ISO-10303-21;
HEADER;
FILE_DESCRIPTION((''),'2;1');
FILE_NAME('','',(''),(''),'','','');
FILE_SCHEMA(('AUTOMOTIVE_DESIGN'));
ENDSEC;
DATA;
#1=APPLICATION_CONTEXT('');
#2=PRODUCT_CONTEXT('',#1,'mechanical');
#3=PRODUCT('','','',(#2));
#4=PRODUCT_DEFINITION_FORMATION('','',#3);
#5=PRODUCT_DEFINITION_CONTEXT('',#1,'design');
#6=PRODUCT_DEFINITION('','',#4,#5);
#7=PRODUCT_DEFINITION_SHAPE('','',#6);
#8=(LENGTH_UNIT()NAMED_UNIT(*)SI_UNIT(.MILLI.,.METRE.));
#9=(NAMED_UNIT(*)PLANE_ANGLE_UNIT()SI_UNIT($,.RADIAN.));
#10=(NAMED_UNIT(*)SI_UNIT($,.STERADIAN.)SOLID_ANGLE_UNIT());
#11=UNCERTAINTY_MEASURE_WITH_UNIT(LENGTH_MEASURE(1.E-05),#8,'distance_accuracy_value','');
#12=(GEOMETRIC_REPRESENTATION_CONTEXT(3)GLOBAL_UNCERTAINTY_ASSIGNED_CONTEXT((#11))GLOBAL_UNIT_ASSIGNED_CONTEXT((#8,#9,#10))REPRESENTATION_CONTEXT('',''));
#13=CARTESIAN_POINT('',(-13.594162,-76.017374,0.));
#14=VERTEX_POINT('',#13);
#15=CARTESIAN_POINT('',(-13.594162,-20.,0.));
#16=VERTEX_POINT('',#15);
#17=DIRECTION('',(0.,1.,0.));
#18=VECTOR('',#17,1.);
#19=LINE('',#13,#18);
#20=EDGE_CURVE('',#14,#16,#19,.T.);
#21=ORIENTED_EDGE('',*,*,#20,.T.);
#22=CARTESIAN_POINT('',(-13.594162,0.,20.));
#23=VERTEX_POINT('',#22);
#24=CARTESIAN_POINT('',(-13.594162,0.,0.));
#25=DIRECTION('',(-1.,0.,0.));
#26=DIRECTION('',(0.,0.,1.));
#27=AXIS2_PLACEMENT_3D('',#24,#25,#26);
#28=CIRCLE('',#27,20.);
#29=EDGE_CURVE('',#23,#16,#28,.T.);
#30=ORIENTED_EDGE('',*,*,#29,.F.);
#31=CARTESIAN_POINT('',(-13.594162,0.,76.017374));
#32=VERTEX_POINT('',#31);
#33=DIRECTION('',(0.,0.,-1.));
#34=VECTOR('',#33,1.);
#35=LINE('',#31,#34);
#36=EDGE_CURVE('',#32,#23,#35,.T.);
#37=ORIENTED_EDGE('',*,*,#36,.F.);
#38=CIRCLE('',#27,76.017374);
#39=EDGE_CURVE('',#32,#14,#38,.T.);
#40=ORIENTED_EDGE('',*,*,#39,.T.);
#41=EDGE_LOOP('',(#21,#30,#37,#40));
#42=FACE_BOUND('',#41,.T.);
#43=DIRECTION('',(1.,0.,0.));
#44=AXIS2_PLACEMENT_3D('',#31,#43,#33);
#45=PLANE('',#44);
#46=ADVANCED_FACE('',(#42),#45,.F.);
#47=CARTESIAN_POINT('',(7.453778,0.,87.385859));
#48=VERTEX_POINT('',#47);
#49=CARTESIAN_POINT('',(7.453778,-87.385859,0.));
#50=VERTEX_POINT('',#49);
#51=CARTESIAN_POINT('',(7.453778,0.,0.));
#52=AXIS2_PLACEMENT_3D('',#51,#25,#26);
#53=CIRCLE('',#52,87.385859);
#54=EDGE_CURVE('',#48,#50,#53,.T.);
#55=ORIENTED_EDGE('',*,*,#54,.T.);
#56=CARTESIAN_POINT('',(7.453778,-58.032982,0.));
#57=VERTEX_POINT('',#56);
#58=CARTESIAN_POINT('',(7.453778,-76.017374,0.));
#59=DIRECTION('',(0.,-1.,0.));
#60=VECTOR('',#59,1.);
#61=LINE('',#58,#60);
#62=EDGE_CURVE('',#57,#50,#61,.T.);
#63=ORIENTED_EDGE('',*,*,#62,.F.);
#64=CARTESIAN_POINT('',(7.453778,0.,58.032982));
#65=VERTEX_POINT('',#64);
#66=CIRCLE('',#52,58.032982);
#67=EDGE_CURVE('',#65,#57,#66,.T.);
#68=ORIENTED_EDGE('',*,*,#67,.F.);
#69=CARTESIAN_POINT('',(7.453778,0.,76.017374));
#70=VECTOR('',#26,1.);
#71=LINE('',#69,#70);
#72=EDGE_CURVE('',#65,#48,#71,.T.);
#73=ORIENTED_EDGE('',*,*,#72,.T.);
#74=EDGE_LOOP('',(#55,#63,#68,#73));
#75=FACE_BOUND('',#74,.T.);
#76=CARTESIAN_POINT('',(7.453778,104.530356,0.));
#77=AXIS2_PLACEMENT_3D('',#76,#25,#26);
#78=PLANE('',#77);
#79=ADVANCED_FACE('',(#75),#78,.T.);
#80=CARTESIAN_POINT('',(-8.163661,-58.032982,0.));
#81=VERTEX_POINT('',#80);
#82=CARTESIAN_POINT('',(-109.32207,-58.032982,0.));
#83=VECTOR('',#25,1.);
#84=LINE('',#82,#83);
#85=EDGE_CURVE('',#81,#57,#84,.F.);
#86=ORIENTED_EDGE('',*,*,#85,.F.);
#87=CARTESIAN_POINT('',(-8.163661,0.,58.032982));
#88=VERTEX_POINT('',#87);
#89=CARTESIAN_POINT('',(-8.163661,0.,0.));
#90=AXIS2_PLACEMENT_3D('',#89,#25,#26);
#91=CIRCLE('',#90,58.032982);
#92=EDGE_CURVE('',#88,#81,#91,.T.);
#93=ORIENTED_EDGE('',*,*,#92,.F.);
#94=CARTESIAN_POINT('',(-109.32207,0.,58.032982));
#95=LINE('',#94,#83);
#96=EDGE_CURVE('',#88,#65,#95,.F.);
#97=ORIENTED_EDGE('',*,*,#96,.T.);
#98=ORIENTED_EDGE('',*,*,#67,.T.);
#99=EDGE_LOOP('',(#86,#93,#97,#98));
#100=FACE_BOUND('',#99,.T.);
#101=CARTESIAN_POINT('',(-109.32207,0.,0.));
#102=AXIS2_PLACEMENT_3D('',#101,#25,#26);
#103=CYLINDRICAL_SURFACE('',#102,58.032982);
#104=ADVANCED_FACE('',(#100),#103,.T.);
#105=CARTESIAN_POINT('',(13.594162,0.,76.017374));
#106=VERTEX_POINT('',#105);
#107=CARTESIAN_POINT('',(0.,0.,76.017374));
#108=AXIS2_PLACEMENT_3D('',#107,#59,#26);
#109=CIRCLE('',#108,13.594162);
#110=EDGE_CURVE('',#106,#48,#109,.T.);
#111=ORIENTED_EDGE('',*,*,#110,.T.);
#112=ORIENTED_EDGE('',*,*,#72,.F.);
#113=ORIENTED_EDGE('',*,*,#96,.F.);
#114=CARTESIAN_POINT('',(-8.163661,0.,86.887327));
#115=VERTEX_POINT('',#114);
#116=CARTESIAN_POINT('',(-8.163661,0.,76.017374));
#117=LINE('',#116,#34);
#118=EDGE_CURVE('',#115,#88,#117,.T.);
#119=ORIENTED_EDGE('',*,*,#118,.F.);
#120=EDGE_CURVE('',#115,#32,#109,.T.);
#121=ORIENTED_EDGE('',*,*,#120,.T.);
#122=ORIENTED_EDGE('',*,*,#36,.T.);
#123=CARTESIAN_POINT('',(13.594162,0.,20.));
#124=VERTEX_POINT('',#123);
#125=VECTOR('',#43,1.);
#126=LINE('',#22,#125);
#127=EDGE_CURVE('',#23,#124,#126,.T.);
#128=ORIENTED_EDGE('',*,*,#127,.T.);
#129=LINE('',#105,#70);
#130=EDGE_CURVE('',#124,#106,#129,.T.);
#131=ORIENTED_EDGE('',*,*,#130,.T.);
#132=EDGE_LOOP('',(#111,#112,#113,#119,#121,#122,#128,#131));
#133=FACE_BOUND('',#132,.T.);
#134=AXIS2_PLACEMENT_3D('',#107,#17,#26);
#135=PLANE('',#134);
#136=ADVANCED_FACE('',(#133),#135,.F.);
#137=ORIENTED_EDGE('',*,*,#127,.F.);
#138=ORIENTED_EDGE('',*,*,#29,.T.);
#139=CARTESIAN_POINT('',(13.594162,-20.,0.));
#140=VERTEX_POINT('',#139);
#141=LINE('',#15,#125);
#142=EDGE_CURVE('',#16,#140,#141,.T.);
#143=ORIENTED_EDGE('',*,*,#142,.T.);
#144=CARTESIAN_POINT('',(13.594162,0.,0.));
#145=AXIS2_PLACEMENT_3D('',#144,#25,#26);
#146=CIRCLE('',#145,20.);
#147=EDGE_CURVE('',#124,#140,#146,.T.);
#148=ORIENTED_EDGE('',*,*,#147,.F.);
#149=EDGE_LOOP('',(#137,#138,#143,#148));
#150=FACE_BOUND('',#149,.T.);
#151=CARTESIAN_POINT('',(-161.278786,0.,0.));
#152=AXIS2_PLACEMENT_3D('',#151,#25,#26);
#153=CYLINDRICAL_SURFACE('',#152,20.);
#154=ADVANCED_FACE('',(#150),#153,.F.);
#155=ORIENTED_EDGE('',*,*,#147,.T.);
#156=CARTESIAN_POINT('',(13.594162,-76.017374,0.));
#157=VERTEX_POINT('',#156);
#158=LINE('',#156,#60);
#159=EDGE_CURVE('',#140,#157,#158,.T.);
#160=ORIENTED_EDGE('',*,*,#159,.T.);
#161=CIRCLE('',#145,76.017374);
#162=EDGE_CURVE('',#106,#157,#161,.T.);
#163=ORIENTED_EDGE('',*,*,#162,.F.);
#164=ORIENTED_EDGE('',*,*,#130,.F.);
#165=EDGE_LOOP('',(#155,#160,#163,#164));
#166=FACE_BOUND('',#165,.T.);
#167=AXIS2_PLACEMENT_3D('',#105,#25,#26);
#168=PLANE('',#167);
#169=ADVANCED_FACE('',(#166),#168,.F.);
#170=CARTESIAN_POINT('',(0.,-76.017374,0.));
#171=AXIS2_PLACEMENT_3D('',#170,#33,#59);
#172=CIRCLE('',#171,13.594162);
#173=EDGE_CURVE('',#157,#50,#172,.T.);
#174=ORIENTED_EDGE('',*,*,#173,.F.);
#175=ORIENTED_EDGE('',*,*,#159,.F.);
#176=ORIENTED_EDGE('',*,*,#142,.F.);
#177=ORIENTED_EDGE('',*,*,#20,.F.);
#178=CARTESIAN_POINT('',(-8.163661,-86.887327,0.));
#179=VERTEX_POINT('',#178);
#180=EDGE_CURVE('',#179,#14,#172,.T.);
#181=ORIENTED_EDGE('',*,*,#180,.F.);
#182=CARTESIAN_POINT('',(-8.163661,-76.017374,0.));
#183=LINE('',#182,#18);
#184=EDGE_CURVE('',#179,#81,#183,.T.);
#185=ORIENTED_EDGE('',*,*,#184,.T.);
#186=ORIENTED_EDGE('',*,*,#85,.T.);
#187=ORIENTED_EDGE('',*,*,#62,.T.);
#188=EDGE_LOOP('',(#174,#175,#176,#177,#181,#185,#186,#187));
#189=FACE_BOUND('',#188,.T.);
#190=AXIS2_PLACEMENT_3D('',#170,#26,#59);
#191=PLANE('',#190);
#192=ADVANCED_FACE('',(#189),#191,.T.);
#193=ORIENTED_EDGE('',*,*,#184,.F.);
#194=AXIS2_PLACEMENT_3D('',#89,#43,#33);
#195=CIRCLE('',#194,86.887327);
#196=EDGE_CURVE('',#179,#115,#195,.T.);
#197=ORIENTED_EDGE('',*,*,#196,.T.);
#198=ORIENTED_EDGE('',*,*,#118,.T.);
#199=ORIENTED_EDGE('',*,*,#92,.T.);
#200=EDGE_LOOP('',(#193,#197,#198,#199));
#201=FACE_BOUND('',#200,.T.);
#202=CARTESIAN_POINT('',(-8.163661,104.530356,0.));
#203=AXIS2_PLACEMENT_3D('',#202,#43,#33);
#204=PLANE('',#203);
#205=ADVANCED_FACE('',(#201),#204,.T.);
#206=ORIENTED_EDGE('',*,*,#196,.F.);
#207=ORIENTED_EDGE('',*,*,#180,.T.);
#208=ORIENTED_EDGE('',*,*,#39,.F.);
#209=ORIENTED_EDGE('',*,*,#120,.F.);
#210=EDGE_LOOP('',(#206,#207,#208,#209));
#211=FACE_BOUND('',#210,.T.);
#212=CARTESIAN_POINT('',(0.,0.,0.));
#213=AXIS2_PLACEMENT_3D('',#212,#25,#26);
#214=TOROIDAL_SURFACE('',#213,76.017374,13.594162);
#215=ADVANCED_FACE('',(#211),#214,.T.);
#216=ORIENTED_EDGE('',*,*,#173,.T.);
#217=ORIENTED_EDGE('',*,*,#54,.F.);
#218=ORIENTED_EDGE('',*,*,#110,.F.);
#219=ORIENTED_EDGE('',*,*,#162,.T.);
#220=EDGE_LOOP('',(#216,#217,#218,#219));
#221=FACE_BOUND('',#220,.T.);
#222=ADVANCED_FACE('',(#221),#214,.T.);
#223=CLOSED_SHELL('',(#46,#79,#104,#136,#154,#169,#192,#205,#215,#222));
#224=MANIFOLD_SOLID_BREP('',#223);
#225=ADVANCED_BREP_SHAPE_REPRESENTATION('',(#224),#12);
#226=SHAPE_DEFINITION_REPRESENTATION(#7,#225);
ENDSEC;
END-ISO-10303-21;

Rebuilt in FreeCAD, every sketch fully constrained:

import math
import FreeCAD as App
import Part
import Sketcher
from FreeCAD import Vector
Q = App.Units.Quantity

doc = App.newDocument("Part")
body = doc.addObject("PartDesign::Body", "Body")

# Sketch on XZ plane
sketch1 = body.newObject("Sketcher::SketchObject", "Sketch")
sketch1.AttachmentSupport = (doc.getObject("XZ_Plane"), [""])
sketch1.MapMode = "FlatFace"
sketch1.addGeometry([
    Part.LineSegment(Vector(-14, -76, 0), Vector(-14, -20, 0)),
    Part.LineSegment(Vector(-14, -20, 0), Vector(14, -20, 0)),
    Part.LineSegment(Vector(14, -20, 0), Vector(14, -76, 0)),
    Part.ArcOfCircle(Part.Circle(Vector(0, -76, 0), Vector(0, 0, 1), 14), math.radians(180), math.radians(360)),
], False)
sketch1.addConstraint([
    Sketcher.Constraint("Coincident", 0, 2, 1, 1),
    Sketcher.Constraint("Coincident", 1, 2, 2, 1),
    Sketcher.Constraint("Tangent", 2, 2, 3, 2),
    Sketcher.Constraint("Tangent", 3, 1, 0, 1),
    Sketcher.Constraint("Vertical", 0),
    Sketcher.Constraint("Horizontal", 1),
    Sketcher.Constraint("Vertical", 2),
    Sketcher.Constraint("PointOnObject", 3, 3, -2),
    Sketcher.Constraint("DistanceY", 0, 2, -1, 1, Q("20 mm")),
    Sketcher.Constraint("Radius", 3, Q("13.594162 mm")),
    Sketcher.Constraint("DistanceY", 0, 1, 0, 2, Q("56.017374 mm")),
])
revolution = body.newObject("PartDesign::Revolution", "Revolution")
revolution.Profile = sketch1
revolution.ReferenceAxis = (sketch1, ["H_Axis"])
revolution.Angle = 180

# Sketch on XZ plane
sketch2 = body.newObject("Sketcher::SketchObject", "Sketch001")
sketch2.AttachmentSupport = (doc.getObject("XZ_Plane"), [""])
sketch2.MapMode = "FlatFace"
sketch2.addGeometry([
    Part.LineSegment(Vector(-14, -76, 0), Vector(-14, -20, 0)),
    Part.LineSegment(Vector(-14, -20, 0), Vector(14, -20, 0)),
    Part.LineSegment(Vector(14, -20, 0), Vector(14, -76, 0)),
    Part.ArcOfCircle(Part.Circle(Vector(0, -76, 0), Vector(0, 0, 1), 14), math.radians(180), math.radians(360)),
], False)
sketch2.addConstraint([
    Sketcher.Constraint("Coincident", 0, 2, 1, 1),
    Sketcher.Constraint("Coincident", 1, 2, 2, 1),
    Sketcher.Constraint("Tangent", 2, 2, 3, 2),
    Sketcher.Constraint("Tangent", 3, 1, 0, 1),
    Sketcher.Constraint("Vertical", 0),
    Sketcher.Constraint("Horizontal", 1),
    Sketcher.Constraint("Vertical", 2),
    Sketcher.Constraint("PointOnObject", 3, 3, -2),
    Sketcher.Constraint("DistanceY", 0, 2, -1, 1, Q("20 mm")),
    Sketcher.Constraint("Radius", 3, Q("13.594162 mm")),
    Sketcher.Constraint("DistanceY", 0, 1, 0, 2, Q("56.017374 mm")),
])
revolution2 = body.newObject("PartDesign::Revolution", "Revolution001")
revolution2.Profile = sketch2
revolution2.ReferenceAxis = (sketch2, ["H_Axis"])
revolution2.Angle = 90
revolution2.Reversed = True

# Sketch on XY plane
sketch3 = body.newObject("Sketcher::SketchObject", "Sketch002")
sketch3.AttachmentSupport = (doc.getObject("XY_Plane"), [""])
sketch3.MapMode = "FlatFace"
sketch3.addGeometry([
    Part.LineSegment(Vector(-8, 105, 0), Vector(-8, 58, 0)),
    Part.LineSegment(Vector(-8, 58, 0), Vector(7, 58, 0)),
    Part.LineSegment(Vector(7, 58, 0), Vector(7, 105, 0)),
    Part.LineSegment(Vector(7, 105, 0), Vector(-8, 105, 0)),
], False)
sketch3.addConstraint([
    Sketcher.Constraint("Coincident", 0, 2, 1, 1),
    Sketcher.Constraint("Coincident", 1, 2, 2, 1),
    Sketcher.Constraint("Coincident", 2, 2, 3, 1),
    Sketcher.Constraint("Coincident", 3, 2, 0, 1),
    Sketcher.Constraint("Vertical", 0),
    Sketcher.Constraint("Horizontal", 1),
    Sketcher.Constraint("Vertical", 2),
    Sketcher.Constraint("Horizontal", 3),
    Sketcher.Constraint("DistanceX", 1, 1, 1, 2, Q("15.617439 mm")),
    Sketcher.Constraint("DistanceY", 0, 2, 0, 1, Q("46.497374 mm")),
    Sketcher.Constraint("DistanceX", 0, 2, -1, 1, Q("8.163661 mm")),
    Sketcher.Constraint("DistanceY", -1, 1, 0, 2, Q("58.032982 mm")),
])
groove = body.newObject("PartDesign::Groove", "Groove")
groove.Profile = sketch3
groove.ReferenceAxis = (sketch3, ["H_Axis"])
groove.Angle = 360

doc.recompute()
